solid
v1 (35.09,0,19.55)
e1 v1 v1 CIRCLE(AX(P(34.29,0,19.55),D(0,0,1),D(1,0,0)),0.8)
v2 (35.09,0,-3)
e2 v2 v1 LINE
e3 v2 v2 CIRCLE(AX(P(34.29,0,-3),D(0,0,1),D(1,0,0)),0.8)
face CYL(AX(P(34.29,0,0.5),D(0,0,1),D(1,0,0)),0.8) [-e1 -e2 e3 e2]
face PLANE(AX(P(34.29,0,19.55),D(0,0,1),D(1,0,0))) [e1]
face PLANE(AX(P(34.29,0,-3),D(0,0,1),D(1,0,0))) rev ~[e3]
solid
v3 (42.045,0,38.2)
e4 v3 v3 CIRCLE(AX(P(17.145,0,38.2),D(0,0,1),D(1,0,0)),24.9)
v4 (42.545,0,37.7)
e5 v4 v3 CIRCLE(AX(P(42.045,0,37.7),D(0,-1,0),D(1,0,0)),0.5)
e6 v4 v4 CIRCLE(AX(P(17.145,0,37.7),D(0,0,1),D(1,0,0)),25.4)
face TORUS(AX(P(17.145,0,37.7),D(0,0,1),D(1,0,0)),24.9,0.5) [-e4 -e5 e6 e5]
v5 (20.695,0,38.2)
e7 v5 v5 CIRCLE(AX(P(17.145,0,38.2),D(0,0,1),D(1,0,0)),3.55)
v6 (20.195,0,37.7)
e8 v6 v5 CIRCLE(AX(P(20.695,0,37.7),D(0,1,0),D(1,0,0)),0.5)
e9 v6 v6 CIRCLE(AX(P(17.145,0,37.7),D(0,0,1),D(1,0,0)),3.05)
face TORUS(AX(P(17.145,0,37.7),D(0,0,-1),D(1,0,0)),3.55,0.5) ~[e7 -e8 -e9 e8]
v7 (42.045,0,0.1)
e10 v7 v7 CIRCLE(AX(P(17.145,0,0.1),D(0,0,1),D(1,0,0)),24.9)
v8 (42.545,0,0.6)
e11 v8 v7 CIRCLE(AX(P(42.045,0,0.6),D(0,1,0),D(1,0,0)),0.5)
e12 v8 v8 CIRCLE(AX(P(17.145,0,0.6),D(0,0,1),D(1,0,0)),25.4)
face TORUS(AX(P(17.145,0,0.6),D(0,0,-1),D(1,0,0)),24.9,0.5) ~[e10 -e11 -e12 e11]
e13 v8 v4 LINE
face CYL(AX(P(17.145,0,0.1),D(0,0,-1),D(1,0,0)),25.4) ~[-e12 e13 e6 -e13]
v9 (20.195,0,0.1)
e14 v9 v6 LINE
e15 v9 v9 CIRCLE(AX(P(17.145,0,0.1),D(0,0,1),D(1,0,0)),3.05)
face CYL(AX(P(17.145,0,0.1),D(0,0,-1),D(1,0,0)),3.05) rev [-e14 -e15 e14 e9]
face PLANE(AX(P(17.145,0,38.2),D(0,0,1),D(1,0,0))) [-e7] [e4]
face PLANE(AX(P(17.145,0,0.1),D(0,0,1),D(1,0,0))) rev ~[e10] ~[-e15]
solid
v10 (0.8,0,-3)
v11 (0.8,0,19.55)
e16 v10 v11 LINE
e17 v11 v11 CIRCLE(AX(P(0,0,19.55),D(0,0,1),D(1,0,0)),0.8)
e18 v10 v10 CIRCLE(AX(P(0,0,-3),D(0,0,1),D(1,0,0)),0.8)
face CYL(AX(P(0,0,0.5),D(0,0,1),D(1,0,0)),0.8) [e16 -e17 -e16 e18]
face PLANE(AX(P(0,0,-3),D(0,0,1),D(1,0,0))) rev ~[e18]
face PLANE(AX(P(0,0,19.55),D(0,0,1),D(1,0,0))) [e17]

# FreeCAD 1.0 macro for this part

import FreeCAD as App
import Part
import Sketcher

V = App.Vector
Q = App.Units.Quantity


def edges_at(feature, points):
    """Names of the edges that pass closest to the given points."""
    edges = feature.Shape.Edges
    near = lambda p: min(range(len(edges)), key=lambda i: edges[i].distToShape(Part.Vertex(*p))[0])
    return sorted({f"Edge{near(p) + 1}" for p in points})

doc = App.newDocument("Part")
body = doc.addObject("PartDesign::Body", "Body")
body.AllowCompound = True

# Sketch on XY plane
sketch1 = body.newObject("Sketcher::SketchObject", "Sketch")
sketch1.AttachmentSupport = (doc.getObject("XY_Plane"), [""])
sketch1.MapMode = "FlatFace"
sketch1.AttachmentOffset = App.Placement(V(0, 0, 0.5), App.Rotation())
sketch1.addGeometry([
    Part.Circle(V(0, 0, 0), V(0, 0, 1), 0.8),
    Part.Circle(V(34.29, 0, 0), V(0, 0, 1), 0.8),
], False)
sketch1.addConstraint([
    Sketcher.Constraint("Coincident", 0, 3, -1, 1),
    Sketcher.Constraint("Equal", 0, 1),
    Sketcher.Constraint("PointOnObject", 1, 3, -1),
    Sketcher.Constraint("Diameter", 0, Q("1.6 mm")),
    Sketcher.Constraint("DistanceX", -1, 1, 1, 3, Q("34.29 mm")),
])
pad1 = body.newObject("PartDesign::Pad", "Pad")
pad1.Profile = sketch1
pad1.Type = "TwoLengths"
pad1.Length = 19.05
pad1.Length2 = 3.5
body2 = doc.addObject("PartDesign::Body", "Body001")

# Sketch on XY plane
sketch2 = body2.newObject("Sketcher::SketchObject", "Sketch001")
sketch2.AttachmentSupport = (doc.getObject("XY_Plane001"), [""])
sketch2.MapMode = "FlatFace"
sketch2.AttachmentOffset = App.Placement(V(0, 0, 0.1), App.Rotation())
sketch2.addGeometry([
    Part.Circle(V(17.145, 0, 0), V(0, 0, 1), 25.4),
    Part.Circle(V(17.145, 0, 0), V(0, 0, 1), 3.05),
], False)
sketch2.addConstraint([
    Sketcher.Constraint("Coincident", 1, 3, 0, 3),
    Sketcher.Constraint("PointOnObject", 0, 3, -1),
    Sketcher.Constraint("Diameter", 0, Q("50.8 mm")),
    Sketcher.Constraint("Diameter", 1, Q("6.1 mm")),
    Sketcher.Constraint("DistanceX", -1, 1, 0, 3, Q("17.145 mm")),
])
pad2 = body2.newObject("PartDesign::Pad", "Pad001")
pad2.Profile = sketch2
pad2.Length = 38.1
doc.recompute()

fillet = body2.newObject("PartDesign::Fillet", "Fillet")
fillet.Base = (pad2, edges_at(pad2, [(14.095, 0, 38.2), (-8.255, 0, 38.2), (-8.255, 0, 0.1)]))
fillet.Radius = 0.5

doc.recompute()
